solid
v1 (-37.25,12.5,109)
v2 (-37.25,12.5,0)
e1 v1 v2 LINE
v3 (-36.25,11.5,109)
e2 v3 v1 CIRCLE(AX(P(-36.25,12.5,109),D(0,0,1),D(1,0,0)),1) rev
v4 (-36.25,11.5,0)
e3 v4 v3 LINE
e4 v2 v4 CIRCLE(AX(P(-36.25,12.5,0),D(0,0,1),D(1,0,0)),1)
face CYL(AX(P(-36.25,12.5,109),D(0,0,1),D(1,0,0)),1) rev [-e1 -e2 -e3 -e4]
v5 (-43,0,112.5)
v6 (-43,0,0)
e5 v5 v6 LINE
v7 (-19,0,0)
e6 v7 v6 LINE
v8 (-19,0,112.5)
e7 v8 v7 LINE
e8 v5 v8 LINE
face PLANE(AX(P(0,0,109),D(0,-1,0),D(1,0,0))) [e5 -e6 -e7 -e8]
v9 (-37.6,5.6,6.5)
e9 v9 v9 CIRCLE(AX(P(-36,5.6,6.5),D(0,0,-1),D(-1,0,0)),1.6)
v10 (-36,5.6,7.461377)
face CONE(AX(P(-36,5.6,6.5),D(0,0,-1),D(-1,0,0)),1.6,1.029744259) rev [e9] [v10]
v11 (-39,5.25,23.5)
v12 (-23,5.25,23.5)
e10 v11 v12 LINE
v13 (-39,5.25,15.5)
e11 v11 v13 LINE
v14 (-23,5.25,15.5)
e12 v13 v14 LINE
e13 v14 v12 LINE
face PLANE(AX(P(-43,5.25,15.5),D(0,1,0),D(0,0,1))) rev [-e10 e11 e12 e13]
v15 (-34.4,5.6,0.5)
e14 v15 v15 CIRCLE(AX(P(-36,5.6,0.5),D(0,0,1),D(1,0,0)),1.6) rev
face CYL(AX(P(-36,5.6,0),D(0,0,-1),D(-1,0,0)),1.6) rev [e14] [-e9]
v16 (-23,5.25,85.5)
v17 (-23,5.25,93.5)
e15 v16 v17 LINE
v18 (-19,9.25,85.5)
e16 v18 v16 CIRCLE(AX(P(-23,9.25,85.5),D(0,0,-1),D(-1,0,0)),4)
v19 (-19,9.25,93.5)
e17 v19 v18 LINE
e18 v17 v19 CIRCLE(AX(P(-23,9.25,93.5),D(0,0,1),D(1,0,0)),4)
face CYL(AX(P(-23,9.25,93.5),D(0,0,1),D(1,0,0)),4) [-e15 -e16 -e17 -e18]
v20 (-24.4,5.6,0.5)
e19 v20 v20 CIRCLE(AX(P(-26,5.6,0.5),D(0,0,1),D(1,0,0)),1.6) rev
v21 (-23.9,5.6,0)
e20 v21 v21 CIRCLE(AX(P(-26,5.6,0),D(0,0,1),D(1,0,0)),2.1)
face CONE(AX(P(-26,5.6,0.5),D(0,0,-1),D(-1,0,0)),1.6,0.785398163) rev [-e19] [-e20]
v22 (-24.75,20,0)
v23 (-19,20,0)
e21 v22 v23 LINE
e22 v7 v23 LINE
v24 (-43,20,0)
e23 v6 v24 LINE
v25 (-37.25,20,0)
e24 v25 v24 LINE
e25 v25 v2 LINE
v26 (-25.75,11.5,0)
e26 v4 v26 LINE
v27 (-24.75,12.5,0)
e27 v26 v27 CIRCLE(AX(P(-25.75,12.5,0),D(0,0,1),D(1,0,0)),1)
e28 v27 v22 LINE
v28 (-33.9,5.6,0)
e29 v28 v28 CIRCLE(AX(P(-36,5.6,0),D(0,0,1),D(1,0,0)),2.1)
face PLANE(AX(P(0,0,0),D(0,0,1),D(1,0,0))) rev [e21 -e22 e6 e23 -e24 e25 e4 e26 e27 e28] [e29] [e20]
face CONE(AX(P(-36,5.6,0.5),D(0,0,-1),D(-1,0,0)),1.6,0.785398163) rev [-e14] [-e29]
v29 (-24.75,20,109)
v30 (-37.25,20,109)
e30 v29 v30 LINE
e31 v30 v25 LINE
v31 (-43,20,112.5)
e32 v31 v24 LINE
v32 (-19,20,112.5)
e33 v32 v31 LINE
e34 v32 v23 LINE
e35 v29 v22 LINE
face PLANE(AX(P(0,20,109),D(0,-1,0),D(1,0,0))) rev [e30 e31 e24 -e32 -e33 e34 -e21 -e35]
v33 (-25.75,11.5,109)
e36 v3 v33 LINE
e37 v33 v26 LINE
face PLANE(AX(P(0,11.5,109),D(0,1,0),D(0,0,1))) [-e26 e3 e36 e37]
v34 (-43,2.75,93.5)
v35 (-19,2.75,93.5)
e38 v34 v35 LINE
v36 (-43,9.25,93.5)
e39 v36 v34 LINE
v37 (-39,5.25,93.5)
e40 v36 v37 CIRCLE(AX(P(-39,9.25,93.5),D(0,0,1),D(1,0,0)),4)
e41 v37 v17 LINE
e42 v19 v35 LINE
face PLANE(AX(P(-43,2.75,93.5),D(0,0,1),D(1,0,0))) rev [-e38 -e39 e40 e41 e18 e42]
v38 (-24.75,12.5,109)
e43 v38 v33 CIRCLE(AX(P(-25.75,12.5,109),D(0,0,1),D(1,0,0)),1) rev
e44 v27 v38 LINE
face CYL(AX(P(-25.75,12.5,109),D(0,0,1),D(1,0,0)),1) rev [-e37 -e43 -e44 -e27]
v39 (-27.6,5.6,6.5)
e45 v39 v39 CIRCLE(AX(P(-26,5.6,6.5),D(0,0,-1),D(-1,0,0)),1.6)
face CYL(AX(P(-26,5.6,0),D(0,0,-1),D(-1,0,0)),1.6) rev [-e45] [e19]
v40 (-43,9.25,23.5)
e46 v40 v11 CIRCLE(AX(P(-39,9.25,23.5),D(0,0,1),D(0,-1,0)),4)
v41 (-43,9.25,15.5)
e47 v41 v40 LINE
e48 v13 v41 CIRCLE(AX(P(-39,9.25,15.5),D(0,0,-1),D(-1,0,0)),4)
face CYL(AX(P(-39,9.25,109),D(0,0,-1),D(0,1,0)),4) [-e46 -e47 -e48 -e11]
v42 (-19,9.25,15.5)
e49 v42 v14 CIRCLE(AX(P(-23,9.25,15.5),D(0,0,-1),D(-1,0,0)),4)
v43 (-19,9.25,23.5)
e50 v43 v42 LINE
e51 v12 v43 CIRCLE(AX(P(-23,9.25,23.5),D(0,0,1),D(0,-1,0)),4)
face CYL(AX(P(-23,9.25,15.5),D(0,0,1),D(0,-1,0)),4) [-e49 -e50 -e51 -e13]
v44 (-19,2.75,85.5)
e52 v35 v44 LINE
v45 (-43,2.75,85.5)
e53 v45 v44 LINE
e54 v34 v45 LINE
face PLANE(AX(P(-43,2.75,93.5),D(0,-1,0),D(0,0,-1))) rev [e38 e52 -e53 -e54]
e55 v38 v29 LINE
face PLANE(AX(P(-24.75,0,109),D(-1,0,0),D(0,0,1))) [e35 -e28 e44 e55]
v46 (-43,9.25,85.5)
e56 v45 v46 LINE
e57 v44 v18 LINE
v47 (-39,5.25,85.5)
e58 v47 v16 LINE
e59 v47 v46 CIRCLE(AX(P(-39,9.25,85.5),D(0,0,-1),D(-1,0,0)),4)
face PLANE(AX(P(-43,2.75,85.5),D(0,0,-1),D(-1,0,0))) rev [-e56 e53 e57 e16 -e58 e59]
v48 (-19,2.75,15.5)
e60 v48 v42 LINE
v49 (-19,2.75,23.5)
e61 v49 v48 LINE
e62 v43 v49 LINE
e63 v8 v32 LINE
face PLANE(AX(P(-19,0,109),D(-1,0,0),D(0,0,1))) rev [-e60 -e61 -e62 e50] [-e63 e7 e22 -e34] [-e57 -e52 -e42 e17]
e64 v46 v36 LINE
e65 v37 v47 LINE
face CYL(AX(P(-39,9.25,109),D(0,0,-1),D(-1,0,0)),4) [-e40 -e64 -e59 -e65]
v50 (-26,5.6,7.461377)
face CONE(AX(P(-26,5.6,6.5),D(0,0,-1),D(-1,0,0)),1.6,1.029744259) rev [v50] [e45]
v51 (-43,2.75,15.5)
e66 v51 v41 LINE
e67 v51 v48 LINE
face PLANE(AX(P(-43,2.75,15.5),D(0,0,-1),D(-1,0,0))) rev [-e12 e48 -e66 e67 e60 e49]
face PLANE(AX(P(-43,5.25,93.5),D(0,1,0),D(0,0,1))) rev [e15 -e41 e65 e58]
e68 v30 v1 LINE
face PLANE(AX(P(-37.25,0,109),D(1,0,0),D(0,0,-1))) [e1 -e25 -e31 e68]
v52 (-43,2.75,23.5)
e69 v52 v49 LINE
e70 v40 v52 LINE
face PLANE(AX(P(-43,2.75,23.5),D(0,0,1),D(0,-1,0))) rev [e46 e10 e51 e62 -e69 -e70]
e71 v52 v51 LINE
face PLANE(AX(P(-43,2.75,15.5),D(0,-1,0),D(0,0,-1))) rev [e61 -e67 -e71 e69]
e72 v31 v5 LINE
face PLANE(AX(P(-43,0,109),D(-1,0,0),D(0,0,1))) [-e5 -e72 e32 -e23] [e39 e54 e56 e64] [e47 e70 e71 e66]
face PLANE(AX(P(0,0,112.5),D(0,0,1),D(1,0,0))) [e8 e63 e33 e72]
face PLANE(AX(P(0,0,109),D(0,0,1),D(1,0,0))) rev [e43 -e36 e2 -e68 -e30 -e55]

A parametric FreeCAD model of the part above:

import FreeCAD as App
import Part
import Sketcher
Q = App.Units.Quantity


def edges_at(feature, points):
    """Names of the edges that pass closest to the given points."""
    edges = feature.Shape.Edges
    near = lambda p: min(range(len(edges)), key=lambda i: edges[i].distToShape(Part.Vertex(*p))[0])
    return sorted({f"Edge{near(p) + 1}" for p in points})


def add_polygon(sketch, points):
    """Adds a closed chain of lines whose ends are joined by coincident constraints."""
    first, n = sketch.GeometryCount, len(points)
    for a, b in zip(points, points[1:] + points[:1]):
        sketch.addGeometry(Part.LineSegment(App.Vector(*a, 0), App.Vector(*b, 0)), False)
    for i in range(n):
        sketch.addConstraint(Sketcher.Constraint("Coincident", first + i, 2, first + (i + 1) % n, 1))

doc = App.newDocument("Part")
body = doc.addObject("PartDesign::Body", "Body")

# Sketch on XY plane
sketch1 = doc.addObject("Sketcher::SketchObject", "Sketch")
body.addObject(sketch1)
sketch1.AttachmentSupport = (doc.XY_Plane, [""])
sketch1.MapMode = "FlatFace"
add_polygon(sketch1, [(-37.25, 11.5), (-37.25, 20), (-43, 20), (-43, 0), (-19, 0), (-19, 20), (-24.75, 20), (-24.75, 11.5)])  # lines 0-7
sketch1.addConstraint(Sketcher.Constraint("Vertical", 0))
sketch1.addConstraint(Sketcher.Constraint("Horizontal", 1))
sketch1.addConstraint(Sketcher.Constraint("Vertical", 2))
sketch1.addConstraint(Sketcher.Constraint("Horizontal", 3))
sketch1.addConstraint(Sketcher.Constraint("Vertical", 4))
sketch1.addConstraint(Sketcher.Constraint("Horizontal", 5))
sketch1.addConstraint(Sketcher.Constraint("Vertical", 6))
sketch1.addConstraint(Sketcher.Constraint("Horizontal", 7))
sketch1.addConstraint(Sketcher.Constraint("PointOnObject", 2, 2, -1))
sketch1.addConstraint(Sketcher.Constraint("Horizontal", 1, 2, 4, 2))
sketch1.addConstraint(Sketcher.Constraint("Equal", 1, 5))
sketch1.addConstraint(Sketcher.Constraint("DistanceX", 3, 1, 3, 2, Q("24 mm")))
sketch1.addConstraint(Sketcher.Constraint("DistanceY", 2, 2, 2, 1, Q("20 mm")))
sketch1.addConstraint(Sketcher.Constraint("DistanceX", 7, 2, 7, 1, Q("12.5 mm")))
sketch1.addConstraint(Sketcher.Constraint("DistanceY", 0, 1, 0, 2, Q("8.5 mm")))
sketch1.addConstraint(Sketcher.Constraint("DistanceX", 1, 2, -1, 1, Q("43 mm")))
pad1 = doc.addObject("PartDesign::Pad", "Pad")
body.addObject(pad1)
pad1.Profile = sketch1
pad1.Length = 109

# Sketch on XY plane
sketch2 = doc.addObject("Sketcher::SketchObject", "Sketch001")
body.addObject(sketch2)
sketch2.AttachmentSupport = (doc.XY_Plane, [""])
sketch2.MapMode = "FlatFace"
sketch2.AttachmentOffset = App.Placement(App.Vector(0, 0, 109), App.Rotation())
add_polygon(sketch2, [(-43, 20), (-43, 0), (-19, 0), (-19, 20)])  # lines 0-3
sketch2.addConstraint(Sketcher.Constraint("Vertical", 0))
sketch2.addConstraint(Sketcher.Constraint("Horizontal", 1))
sketch2.addConstraint(Sketcher.Constraint("Vertical", 2))
sketch2.addConstraint(Sketcher.Constraint("Horizontal", 3))
sketch2.addConstraint(Sketcher.Constraint("PointOnObject", 0, 2, -1))
sketch2.addConstraint(Sketcher.Constraint("DistanceX", 1, 1, 1, 2, Q("24 mm")))
sketch2.addConstraint(Sketcher.Constraint("DistanceY", 0, 2, 0, 1, Q("20 mm")))
sketch2.addConstraint(Sketcher.Constraint("DistanceX", 0, 2, -1, 1, Q("43 mm")))
pad2 = doc.addObject("PartDesign::Pad", "Pad001")
body.addObject(pad2)
pad2.Profile = sketch2
pad2.Length = 3.5

# Sketch on XY plane
sketch3 = doc.addObject("Sketcher::SketchObject", "Sketch002")
body.addObject(sketch3)
sketch3.AttachmentSupport = (doc.XY_Plane, [""])
sketch3.MapMode = "FlatFace"
sketch3.addGeometry(Part.Circle(App.Vector(-36, 5.6, 0), App.Vector(0, 0, 1), 1.6), False)
sketch3.addGeometry(Part.Circle(App.Vector(-26, 5.6, 0), App.Vector(0, 0, 1), 1.6), False)
sketch3.addConstraint(Sketcher.Constraint("Equal", 0, 1))
sketch3.addConstraint(Sketcher.Constraint("Horizontal", 0, 3, 1, 3))
sketch3.addConstraint(Sketcher.Constraint("Diameter", 0, Q("3.2 mm")))
sketch3.addConstraint(Sketcher.Constraint("DistanceX", 0, 3, -1, 1, Q("36 mm")))
sketch3.addConstraint(Sketcher.Constraint("DistanceX", 1, 3, -1, 1, Q("26 mm")))
sketch3.addConstraint(Sketcher.Constraint("DistanceY", -1, 1, 0, 3, Q("5.6 mm")))
doc.recompute()
hole = doc.addObject("PartDesign::Hole", "Hole")
body.addObject(hole)
hole.Profile = sketch3
hole.ThreadType = "None"
hole.Diameter = 3.2
hole.DepthType = "Dimension"
hole.Depth = 6.5
hole.DrillPoint = "Angled"
hole.DrillPointAngle = 118
hole.Reversed = True

# Sketch on YZ plane
sketch4 = doc.addObject("Sketcher::SketchObject", "Sketch003")
body.addObject(sketch4)
sketch4.AttachmentSupport = (doc.YZ_Plane, [""])
sketch4.MapMode = "FlatFace"
sketch4.AttachmentOffset = App.Placement(App.Vector(0, 0, -19), App.Rotation())
add_polygon(sketch4, [(5.25, 93.5), (2.75, 93.5), (2.75, 85.5), (5.25, 85.5)])  # lines 0-3
add_polygon(sketch4, [(5.25, 23.5), (2.75, 23.5), (2.75, 15.5), (5.25, 15.5)])  # lines 4-7
sketch4.addConstraint(Sketcher.Constraint("Horizontal", 0))
sketch4.addConstraint(Sketcher.Constraint("Vertical", 1))
sketch4.addConstraint(Sketcher.Constraint("Horizontal", 2))
sketch4.addConstraint(Sketcher.Constraint("Vertical", 3))
sketch4.addConstraint(Sketcher.Constraint("Horizontal", 4))
sketch4.addConstraint(Sketcher.Constraint("Vertical", 5))
sketch4.addConstraint(Sketcher.Constraint("Horizontal", 6))
sketch4.addConstraint(Sketcher.Constraint("Vertical", 7))
sketch4.addConstraint(Sketcher.Constraint("Vertical", 1, 2, 4, 2))
sketch4.addConstraint(Sketcher.Constraint("Vertical", 3, 2, 6, 2))
sketch4.addConstraint(Sketcher.Constraint("Equal", 3, 5))
sketch4.addConstraint(Sketcher.Constraint("DistanceY", 1, 2, 1, 1, Q("8 mm")))
sketch4.addConstraint(Sketcher.Constraint("DistanceX", 0, 2, 0, 1, Q("2.5 mm")))
sketch4.addConstraint(Sketcher.Constraint("DistanceY", 4, 2, 1, 2, Q("62 mm")))
sketch4.addConstraint(Sketcher.Constraint("DistanceY", -1, 1, 0, 2, Q("93.5 mm")))
sketch4.addConstraint(Sketcher.Constraint("DistanceX", -1, 1, 0, 2, Q("2.75 mm")))
pocket1 = doc.addObject("PartDesign::Pocket", "Pocket")
body.addObject(pocket1)
pocket1.Profile = sketch4
pocket1.Type = "ThroughAll"
doc.recompute()

fillet = doc.addObject("PartDesign::Fillet", "Fillet")
body.addObject(fillet)
fillet.Base = (pocket1, edges_at(pocket1, [
    (-43, 5.25, 89.5),
    (-19, 5.25, 89.5),
    (-43, 5.25, 19.5),
    (-19, 5.25, 19.5),
]))
fillet.Radius = 4
doc.recompute()

chamfer = doc.addObject("PartDesign::Chamfer", "Chamfer")
body.addObject(chamfer)
chamfer.Base = (fillet, edges_at(fillet, [(-37.6, 5.6, 0), (-27.6, 5.6, 0)]))
chamfer.Size = 0.5
doc.recompute()

fillet2 = doc.addObject("PartDesign::Fillet", "Fillet001")
body.addObject(fillet2)
fillet2.Base = (chamfer, edges_at(chamfer, [(-37.25, 11.5, 54.5), (-24.75, 11.5, 54.5)]))
fillet2.Radius = 1

doc.recompute()
